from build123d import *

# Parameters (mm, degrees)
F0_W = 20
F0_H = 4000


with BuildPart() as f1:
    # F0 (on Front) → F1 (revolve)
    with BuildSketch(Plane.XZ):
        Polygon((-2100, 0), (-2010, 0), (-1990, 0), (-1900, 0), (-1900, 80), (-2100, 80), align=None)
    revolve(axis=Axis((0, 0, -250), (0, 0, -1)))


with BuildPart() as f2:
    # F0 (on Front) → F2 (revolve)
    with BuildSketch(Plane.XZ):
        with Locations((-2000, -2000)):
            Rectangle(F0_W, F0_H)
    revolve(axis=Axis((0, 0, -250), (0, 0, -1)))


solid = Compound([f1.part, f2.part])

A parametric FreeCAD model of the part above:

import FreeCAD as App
import Part
import Sketcher
from FreeCAD import Vector
Q = App.Units.Quantity

doc = App.newDocument("Part")
body = doc.addObject("PartDesign::Body", "Body")

sketch1 = body.newObject("Sketcher::SketchObject", "Sketch")
sketch1.AttachmentSupport = (doc.getObject("XZ_Plane"), [""])
sketch1.MapMode = "FlatFace"
sketch1.addGeometry([
    Part.LineSegment(Vector(-2100, 0, 0), Vector(-1900, 0, 0)),
    Part.LineSegment(Vector(-1900, 0, 0), Vector(-1900, 80, 0)),
    Part.LineSegment(Vector(-1900, 80, 0), Vector(-2100, 80, 0)),
    Part.LineSegment(Vector(-2100, 80, 0), Vector(-2100, 0, 0)),
], False)
sketch1.addConstraint([
    Sketcher.Constraint("Coincident", 0, 2, 1, 1),
    Sketcher.Constraint("Coincident", 1, 2, 2, 1),
    Sketcher.Constraint("Coincident", 2, 2, 3, 1),
    Sketcher.Constraint("Coincident", 3, 2, 0, 1),
    Sketcher.Constraint("Horizontal", 0),
    Sketcher.Constraint("Vertical", 1),
    Sketcher.Constraint("Horizontal", 2),
    Sketcher.Constraint("Vertical", 3),
    Sketcher.Constraint("PointOnObject", 0, 2, -1),
    Sketcher.Constraint("DistanceX", 0, 1, 0, 2, Q("200 mm")),
    Sketcher.Constraint("DistanceY", 1, 1, 1, 2, Q("80 mm")),
    Sketcher.Constraint("DistanceX", 0, 2, -1, 1, Q("1900 mm")),
])
revolution = body.newObject("PartDesign::Revolution", "Revolution")
revolution.Profile = sketch1
revolution.ReferenceAxis = (sketch1, ["V_Axis"])
revolution.Angle = 360
body2 = doc.addObject("PartDesign::Body", "Body001")

sketch2 = body2.newObject("Sketcher::SketchObject", "Sketch001")
sketch2.AttachmentSupport = (doc.getObject("XZ_Plane001"), [""])
sketch2.MapMode = "FlatFace"
sketch2.addGeometry([
    Part.LineSegment(Vector(-2010, 0, 0), Vector(-2010, -4000, 0)),
    Part.LineSegment(Vector(-2010, -4000, 0), Vector(-1990, -4000, 0)),
    Part.LineSegment(Vector(-1990, -4000, 0), Vector(-1990, 0, 0)),
    Part.LineSegment(Vector(-1990, 0, 0), Vector(-2010, 0, 0)),
], False)
sketch2.addConstraint([
    Sketcher.Constraint("Coincident", 0, 2, 1, 1),
    Sketcher.Constraint("Coincident", 1, 2, 2, 1),
    Sketcher.Constraint("Coincident", 2, 2, 3, 1),
    Sketcher.Constraint("Coincident", 3, 2, 0, 1),
    Sketcher.Constraint("Vertical", 0),
    Sketcher.Constraint("Horizontal", 1),
    Sketcher.Constraint("Vertical", 2),
    Sketcher.Constraint("Horizontal", 3),
    Sketcher.Constraint("PointOnObject", 2, 2, -1),
    Sketcher.Constraint("DistanceX", 1, 1, 1, 2, Q("20 mm")),
    Sketcher.Constraint("DistanceY", 0, 2, 0, 1, Q("4000 mm")),
    Sketcher.Constraint("DistanceX", 0, 2, -1, 1, Q("2010 mm")),
])
revolution2 = body2.newObject("PartDesign::Revolution", "Revolution001")
revolution2.Profile = sketch2
revolution2.ReferenceAxis = (sketch2, ["V_Axis"])
revolution2.Angle = 360

doc.recompute()
